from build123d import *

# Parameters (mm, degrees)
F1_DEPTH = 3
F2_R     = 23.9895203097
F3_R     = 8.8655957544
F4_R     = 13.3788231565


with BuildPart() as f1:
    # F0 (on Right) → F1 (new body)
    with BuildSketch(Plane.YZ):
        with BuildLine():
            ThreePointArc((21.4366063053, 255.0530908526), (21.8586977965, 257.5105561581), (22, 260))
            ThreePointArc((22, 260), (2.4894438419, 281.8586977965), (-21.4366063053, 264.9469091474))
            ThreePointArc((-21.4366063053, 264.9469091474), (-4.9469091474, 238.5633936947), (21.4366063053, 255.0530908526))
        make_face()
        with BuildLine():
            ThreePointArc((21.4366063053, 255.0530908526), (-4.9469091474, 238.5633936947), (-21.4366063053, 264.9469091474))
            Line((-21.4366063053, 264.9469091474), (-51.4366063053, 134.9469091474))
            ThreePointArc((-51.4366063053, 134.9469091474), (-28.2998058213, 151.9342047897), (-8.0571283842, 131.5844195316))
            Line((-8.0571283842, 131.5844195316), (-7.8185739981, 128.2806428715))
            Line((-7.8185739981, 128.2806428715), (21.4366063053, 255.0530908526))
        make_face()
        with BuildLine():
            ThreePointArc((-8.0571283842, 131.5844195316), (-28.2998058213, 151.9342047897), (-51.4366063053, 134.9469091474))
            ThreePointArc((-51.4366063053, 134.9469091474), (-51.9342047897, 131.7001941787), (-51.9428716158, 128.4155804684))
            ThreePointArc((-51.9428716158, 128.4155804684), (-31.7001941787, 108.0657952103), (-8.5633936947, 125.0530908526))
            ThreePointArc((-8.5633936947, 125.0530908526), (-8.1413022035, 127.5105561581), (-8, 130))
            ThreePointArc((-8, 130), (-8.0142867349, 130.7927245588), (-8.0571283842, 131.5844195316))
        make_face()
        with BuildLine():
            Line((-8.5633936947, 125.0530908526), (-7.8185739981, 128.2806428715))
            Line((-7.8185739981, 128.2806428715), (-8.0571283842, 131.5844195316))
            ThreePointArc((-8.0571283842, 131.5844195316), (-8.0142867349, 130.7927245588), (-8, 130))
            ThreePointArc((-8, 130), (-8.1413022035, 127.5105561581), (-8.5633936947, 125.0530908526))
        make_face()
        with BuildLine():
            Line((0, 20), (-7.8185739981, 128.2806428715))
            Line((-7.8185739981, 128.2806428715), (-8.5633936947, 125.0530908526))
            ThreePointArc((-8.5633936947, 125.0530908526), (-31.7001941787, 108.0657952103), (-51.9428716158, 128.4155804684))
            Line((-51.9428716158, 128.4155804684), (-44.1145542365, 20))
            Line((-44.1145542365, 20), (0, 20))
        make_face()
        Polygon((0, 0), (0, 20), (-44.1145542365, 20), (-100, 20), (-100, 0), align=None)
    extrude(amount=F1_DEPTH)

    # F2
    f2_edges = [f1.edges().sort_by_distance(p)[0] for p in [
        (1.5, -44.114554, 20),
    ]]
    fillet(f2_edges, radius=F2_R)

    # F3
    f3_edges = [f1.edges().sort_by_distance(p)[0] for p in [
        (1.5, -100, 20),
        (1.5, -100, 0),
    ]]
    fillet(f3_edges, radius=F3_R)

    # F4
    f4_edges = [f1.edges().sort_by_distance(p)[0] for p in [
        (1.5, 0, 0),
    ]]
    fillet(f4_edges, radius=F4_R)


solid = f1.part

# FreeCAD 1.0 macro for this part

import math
import FreeCAD as App
import Part
import Sketcher
Q = App.Units.Quantity


def edges_at(feature, points):
    """Names of the edges that pass closest to the given points."""
    edges = feature.Shape.Edges
    near = lambda p: min(range(len(edges)), key=lambda i: edges[i].distToShape(Part.Vertex(*p))[0])
    return sorted({f"Edge{near(p) + 1}" for p in points})

doc = App.newDocument("Part")
params = doc.addObject("Spreadsheet::Sheet", "Params")
for row, (alias, value) in enumerate([
    ("sketch1_radius", "22 mm"),
    ("sketch1_width", "100 mm"),
    ("sketch1_height", "20 mm"),
    ("pad1_length", "3 mm"),
    ("fillet_radius", "23.98952 mm"),
    ("fillet2_radius", "8.865596 mm"),
    ("fillet3_radius", "13.378823 mm"),
], start=1):
    params.set(f"A{row}", alias)
    params.set(f"B{row}", "=" + value)
    params.setAlias(f"B{row}", alias)

body = doc.addObject("PartDesign::Body", "Body")

sketch1 = body.newObject("Sketcher::SketchObject", "Sketch")
sketch1.AttachmentSupport = (doc.getObject("YZ_Plane"), [""])
sketch1.MapMode = "FlatFace"
sketch1.addGeometry(Part.ArcOfCircle(Part.Circle(App.Vector(0, 260, 0), App.Vector(0, 0, 1), 22), math.radians(-12.99), math.radians(0)), False)
sketch1.addGeometry(Part.ArcOfCircle(Part.Circle(App.Vector(0, 260, 0), App.Vector(0, 0, 1), 22), math.radians(0), math.radians(167)), False)
sketch1.addGeometry(Part.LineSegment(App.Vector(-21.4, 264.9, 0), App.Vector(-51.4, 134.9, 0)), False)
sketch1.addGeometry(Part.ArcOfCircle(Part.Circle(App.Vector(-30, 130, 0), App.Vector(0, 0, 1), 22), math.radians(167.01), math.radians(184.13)), False)
sketch1.addGeometry(Part.LineSegment(App.Vector(-51.9, 128.4, 0), App.Vector(-44.1, 20, 0)), False)
sketch1.addGeometry(Part.LineSegment(App.Vector(-44.1, 20, 0), App.Vector(-100, 20, 0)), False)
sketch1.addGeometry(Part.LineSegment(App.Vector(-100, 20, 0), App.Vector(-100, 0, 0)), False)
sketch1.addGeometry(Part.LineSegment(App.Vector(-100, 0, 0), App.Vector(0, 0, 0)), False)
sketch1.addGeometry(Part.LineSegment(App.Vector(0, 0, 0), App.Vector(0, 20, 0)), False)
sketch1.addGeometry(Part.LineSegment(App.Vector(0, 20, 0), App.Vector(-7.8, 128.3, 0)), False)
sketch1.addGeometry(Part.LineSegment(App.Vector(-7.8, 128.3, 0), App.Vector(21.4, 255.1, 0)), False)
sketch1.addConstraint(Sketcher.Constraint("Tangent", 0, 2, 1, 1))
sketch1.addConstraint(Sketcher.Constraint("Tangent", 1, 2, 2, 1))
sketch1.addConstraint(Sketcher.Constraint("Tangent", 2, 2, 3, 1))
sketch1.addConstraint(Sketcher.Constraint("Tangent", 3, 2, 4, 1))
sketch1.addConstraint(Sketcher.Constraint("Coincident", 4, 2, 5, 1))
sketch1.addConstraint(Sketcher.Constraint("Coincident", 5, 2, 6, 1))
sketch1.addConstraint(Sketcher.Constraint("Coincident", 6, 2, 7, 1))
sketch1.addConstraint(Sketcher.Constraint("Coincident", 7, 2, 8, 1))
sketch1.addConstraint(Sketcher.Constraint("Coincident", 8, 2, 9, 1))
sketch1.addConstraint(Sketcher.Constraint("Coincident", 9, 2, 10, 1))
sketch1.addConstraint(Sketcher.Constraint("Tangent", 10, 2, 0, 1))
sketch1.addConstraint(Sketcher.Constraint("Horizontal", 5))
sketch1.addConstraint(Sketcher.Constraint("Vertical", 6))
sketch1.addConstraint(Sketcher.Constraint("Horizontal", 7))
sketch1.addConstraint(Sketcher.Constraint("Vertical", 8))
sketch1.addConstraint(Sketcher.Constraint("Coincident", 7, 2, -1, 1))
sketch1.addConstraint(Sketcher.Constraint("Equal", 0, 1))
sketch1.addConstraint(Sketcher.Constraint("Equal", 1, 3))
sketch1.addConstraint(Sketcher.Constraint("PointOnObject", 0, 3, -2))
sketch1.addConstraint(Sketcher.Constraint("Parallel", 4, 9))
sketch1.addConstraint(Sketcher.Constraint("Parallel", 2, 10))
sketch1.addConstraint(Sketcher.Constraint("Horizontal", 1, 3, 0, 2))
sketch1.addConstraint(Sketcher.Constraint("Horizontal", 5, 2, 8, 2))
sketch1.addConstraint(Sketcher.Constraint("Radius", 0, Q("22 mm")))
sketch1.addConstraint(Sketcher.Constraint("DistanceX", 7, 1, 7, 2, Q("100 mm")))
sketch1.addConstraint(Sketcher.Constraint("DistanceY", 6, 2, 6, 1, Q("20 mm")))
sketch1.addConstraint(Sketcher.Constraint("DistanceY", -1, 1, 0, 3, Q("260 mm")))
sketch1.addConstraint(Sketcher.Constraint("DistanceX", 3, 3, -1, 1, Q("30 mm")))
sketch1.addConstraint(Sketcher.Constraint("DistanceY", -1, 1, 3, 3, Q("130 mm")))
sketch1.addConstraint(Sketcher.Constraint("Distance", 4, Q("108.697841 mm")))
sketch1.setExpression("Constraints[23]", "Params.sketch1_radius")
sketch1.setExpression("Constraints[24]", "Params.sketch1_width")
sketch1.setExpression("Constraints[25]", "Params.sketch1_height")
pad1 = body.newObject("PartDesign::Pad", "Pad")
pad1.Profile = sketch1
pad1.setExpression("Length", "Params.pad1_length")
doc.recompute()

fillet = body.newObject("PartDesign::Fillet", "Fillet")
fillet.Base = (pad1, edges_at(pad1, [(1.5, -44.115, 20)]))
fillet.setExpression("Radius", "Params.fillet_radius")
doc.recompute()

fillet2 = body.newObject("PartDesign::Fillet", "Fillet001")
fillet2.Base = (fillet, edges_at(fillet, [(1.5, -100, 20), (1.5, -100, 0)]))
fillet2.setExpression("Radius", "Params.fillet2_radius")
doc.recompute()

fillet3 = body.newObject("PartDesign::Fillet", "Fillet002")
fillet3.Base = (fillet2, edges_at(fillet2, [(1.5, 0, 0)]))
fillet3.setExpression("Radius", "Params.fillet3_radius")

doc.recompute()
